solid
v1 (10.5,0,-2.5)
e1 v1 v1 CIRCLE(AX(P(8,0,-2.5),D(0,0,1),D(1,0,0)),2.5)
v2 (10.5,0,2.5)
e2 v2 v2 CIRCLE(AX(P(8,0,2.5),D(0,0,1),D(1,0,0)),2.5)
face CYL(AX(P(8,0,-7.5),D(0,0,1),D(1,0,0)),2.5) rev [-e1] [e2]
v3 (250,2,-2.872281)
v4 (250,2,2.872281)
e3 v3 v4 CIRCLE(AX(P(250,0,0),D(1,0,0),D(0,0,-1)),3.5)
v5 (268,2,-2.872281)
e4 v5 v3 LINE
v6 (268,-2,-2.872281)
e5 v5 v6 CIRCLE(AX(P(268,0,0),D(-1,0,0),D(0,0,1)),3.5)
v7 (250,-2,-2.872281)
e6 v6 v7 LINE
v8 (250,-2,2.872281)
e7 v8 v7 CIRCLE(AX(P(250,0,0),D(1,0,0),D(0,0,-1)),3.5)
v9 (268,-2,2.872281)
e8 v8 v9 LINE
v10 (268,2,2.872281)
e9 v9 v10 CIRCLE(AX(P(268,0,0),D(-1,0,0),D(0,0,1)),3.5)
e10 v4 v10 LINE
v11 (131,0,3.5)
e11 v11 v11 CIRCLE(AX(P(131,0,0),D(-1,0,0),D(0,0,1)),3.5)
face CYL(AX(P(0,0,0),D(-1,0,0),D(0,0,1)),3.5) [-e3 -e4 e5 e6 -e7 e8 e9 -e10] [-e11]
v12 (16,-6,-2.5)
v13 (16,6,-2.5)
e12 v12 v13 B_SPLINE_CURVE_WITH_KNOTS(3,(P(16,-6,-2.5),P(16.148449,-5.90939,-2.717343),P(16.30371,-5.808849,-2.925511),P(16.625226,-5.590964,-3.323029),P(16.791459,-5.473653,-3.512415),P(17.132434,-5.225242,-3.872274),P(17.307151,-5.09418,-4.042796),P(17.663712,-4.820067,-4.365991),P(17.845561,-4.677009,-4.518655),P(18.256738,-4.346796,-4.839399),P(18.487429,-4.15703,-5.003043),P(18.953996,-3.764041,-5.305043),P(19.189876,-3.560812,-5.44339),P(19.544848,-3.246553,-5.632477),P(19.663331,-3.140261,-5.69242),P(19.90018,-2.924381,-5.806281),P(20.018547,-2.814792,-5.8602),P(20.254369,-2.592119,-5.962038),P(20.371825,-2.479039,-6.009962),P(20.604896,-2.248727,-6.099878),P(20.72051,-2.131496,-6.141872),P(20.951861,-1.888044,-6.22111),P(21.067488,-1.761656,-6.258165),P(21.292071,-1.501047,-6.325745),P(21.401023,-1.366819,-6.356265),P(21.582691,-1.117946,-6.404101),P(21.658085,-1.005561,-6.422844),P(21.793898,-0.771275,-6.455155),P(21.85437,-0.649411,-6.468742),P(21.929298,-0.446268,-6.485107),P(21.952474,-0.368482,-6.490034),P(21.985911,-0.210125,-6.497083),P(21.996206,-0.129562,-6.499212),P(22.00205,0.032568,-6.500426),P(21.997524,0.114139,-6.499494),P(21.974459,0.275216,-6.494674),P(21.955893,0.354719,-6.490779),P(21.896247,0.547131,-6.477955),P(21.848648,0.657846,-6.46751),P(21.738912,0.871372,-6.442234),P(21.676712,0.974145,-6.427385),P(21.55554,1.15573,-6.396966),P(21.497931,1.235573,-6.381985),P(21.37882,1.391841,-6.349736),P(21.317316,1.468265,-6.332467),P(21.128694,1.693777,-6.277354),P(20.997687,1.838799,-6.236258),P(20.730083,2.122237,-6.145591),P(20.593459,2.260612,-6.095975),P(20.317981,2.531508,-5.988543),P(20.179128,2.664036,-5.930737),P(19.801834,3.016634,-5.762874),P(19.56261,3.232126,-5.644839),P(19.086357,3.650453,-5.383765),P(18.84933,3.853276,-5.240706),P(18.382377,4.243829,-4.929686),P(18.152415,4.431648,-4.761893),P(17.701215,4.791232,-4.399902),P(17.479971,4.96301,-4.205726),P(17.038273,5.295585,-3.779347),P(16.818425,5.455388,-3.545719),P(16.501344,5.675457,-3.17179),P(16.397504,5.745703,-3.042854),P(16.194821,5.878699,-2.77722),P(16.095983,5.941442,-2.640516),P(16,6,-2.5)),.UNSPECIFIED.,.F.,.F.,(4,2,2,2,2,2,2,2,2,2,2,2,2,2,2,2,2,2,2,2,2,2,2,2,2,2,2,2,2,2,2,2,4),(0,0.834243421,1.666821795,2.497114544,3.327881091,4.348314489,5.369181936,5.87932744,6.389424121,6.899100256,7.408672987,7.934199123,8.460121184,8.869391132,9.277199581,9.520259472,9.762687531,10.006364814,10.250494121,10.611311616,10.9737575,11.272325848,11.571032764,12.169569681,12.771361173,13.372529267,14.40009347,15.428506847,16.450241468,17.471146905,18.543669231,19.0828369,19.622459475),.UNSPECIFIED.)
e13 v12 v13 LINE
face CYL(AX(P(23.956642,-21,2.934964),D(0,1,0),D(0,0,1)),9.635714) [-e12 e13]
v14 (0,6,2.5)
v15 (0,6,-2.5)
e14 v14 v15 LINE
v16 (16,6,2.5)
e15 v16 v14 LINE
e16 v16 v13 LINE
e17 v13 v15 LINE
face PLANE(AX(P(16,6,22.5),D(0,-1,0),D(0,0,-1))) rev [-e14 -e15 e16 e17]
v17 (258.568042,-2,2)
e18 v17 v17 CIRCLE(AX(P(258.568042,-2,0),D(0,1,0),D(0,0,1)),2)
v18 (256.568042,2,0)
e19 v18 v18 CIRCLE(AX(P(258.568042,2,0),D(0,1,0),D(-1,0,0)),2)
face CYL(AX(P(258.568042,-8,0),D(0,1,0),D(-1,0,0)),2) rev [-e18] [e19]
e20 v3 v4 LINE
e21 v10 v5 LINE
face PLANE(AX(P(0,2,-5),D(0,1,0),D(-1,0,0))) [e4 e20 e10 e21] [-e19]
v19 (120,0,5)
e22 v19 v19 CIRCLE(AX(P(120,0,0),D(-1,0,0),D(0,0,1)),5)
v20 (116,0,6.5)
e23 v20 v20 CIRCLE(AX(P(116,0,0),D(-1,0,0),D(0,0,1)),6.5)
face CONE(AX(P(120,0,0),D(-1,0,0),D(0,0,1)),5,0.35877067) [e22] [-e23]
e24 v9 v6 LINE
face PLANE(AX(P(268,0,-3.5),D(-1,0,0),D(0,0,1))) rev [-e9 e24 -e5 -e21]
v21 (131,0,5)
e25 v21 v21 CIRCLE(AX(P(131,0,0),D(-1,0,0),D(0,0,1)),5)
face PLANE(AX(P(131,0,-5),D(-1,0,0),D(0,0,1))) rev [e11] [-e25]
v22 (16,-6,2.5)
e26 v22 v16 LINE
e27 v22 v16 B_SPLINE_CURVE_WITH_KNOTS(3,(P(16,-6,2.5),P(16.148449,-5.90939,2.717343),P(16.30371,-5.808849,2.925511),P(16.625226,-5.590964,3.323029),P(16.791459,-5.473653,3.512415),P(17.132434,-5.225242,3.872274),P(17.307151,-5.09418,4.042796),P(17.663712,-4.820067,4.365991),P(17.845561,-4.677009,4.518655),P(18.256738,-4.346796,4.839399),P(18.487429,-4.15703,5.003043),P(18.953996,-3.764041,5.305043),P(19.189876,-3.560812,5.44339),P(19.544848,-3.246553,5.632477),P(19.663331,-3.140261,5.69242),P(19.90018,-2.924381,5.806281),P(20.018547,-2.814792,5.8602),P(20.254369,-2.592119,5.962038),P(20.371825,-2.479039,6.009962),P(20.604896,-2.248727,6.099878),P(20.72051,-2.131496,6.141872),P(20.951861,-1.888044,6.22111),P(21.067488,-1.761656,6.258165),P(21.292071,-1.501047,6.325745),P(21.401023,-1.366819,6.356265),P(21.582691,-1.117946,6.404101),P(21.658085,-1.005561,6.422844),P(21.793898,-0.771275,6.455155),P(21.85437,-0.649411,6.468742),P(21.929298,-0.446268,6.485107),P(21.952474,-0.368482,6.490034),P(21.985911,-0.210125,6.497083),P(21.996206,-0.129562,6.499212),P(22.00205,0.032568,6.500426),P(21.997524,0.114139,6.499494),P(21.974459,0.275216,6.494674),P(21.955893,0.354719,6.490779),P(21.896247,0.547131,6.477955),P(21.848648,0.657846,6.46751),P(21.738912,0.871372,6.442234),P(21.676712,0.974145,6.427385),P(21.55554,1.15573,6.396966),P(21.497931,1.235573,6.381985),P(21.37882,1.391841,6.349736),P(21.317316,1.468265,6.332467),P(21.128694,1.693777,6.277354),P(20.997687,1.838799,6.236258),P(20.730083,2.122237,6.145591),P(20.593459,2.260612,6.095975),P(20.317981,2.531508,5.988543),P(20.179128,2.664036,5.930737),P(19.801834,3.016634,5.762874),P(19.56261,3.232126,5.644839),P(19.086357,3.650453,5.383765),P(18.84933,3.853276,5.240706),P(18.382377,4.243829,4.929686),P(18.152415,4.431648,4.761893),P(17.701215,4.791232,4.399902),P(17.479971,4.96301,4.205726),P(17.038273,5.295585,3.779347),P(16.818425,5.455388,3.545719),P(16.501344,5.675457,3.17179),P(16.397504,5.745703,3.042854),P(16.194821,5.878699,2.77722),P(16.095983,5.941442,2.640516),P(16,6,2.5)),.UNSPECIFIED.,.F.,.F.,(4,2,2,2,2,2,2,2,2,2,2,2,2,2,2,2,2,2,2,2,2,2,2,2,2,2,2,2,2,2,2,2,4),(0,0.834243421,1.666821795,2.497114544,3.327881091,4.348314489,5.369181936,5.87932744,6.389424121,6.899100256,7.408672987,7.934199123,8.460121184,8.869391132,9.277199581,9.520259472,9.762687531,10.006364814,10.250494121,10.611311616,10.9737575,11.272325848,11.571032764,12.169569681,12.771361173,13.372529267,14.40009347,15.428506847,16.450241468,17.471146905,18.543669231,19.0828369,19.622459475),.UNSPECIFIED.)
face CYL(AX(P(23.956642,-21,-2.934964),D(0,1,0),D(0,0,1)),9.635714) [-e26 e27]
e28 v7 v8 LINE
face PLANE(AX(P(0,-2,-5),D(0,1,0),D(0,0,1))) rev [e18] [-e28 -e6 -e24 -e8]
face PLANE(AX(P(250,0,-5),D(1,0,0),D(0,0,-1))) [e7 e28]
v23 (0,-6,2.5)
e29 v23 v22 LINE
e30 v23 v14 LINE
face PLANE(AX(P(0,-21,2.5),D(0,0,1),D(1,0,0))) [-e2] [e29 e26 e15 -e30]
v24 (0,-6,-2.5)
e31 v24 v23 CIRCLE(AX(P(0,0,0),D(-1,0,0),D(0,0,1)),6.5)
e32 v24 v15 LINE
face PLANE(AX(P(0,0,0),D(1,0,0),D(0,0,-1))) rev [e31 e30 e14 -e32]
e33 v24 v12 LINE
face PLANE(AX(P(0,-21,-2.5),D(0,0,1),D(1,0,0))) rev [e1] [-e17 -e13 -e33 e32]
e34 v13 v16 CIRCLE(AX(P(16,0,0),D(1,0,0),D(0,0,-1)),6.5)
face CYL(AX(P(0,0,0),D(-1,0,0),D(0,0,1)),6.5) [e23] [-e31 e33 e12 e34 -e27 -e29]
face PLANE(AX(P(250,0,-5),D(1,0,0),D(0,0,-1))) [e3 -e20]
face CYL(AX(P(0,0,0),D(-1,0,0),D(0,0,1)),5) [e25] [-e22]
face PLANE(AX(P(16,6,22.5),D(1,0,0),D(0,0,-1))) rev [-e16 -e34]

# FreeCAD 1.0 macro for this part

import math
import FreeCAD as App
import Part
import Sketcher
Q = App.Units.Quantity

doc = App.newDocument("Part")
body = doc.addObject("PartDesign::Body", "Body")

# Sketch on XZ plane
sketch1 = body.newObject("Sketcher::SketchObject", "Sketch")
sketch1.AttachmentSupport = (doc.getObject("XZ_Plane"), [""])
sketch1.MapMode = "FlatFace"
sketch1.addGeometry([
    Part.LineSegment(App.Vector(0, -6.5, 0), App.Vector(0, 0, 0)),  # 0
    Part.LineSegment(App.Vector(0, 0, 0), App.Vector(268, 0, 0)),  # 1
    Part.LineSegment(App.Vector(268, 0, 0), App.Vector(268, -3.5, 0)),  # 2
    Part.LineSegment(App.Vector(268, -3.5, 0), App.Vector(131, -3.5, 0)),  # 3
    Part.LineSegment(App.Vector(131, -3.5, 0), App.Vector(131, -5, 0)),  # 4
    Part.LineSegment(App.Vector(131, -5, 0), App.Vector(120, -5, 0)),  # 5
    Part.LineSegment(App.Vector(120, -5, 0), App.Vector(116, -6.5, 0)),  # 6
    Part.LineSegment(App.Vector(116, -6.5, 0), App.Vector(0, -6.5, 0)),  # 7
], False)
sketch1.addConstraint([
    Sketcher.Constraint("Coincident", 0, 2, 1, 1),
    Sketcher.Constraint("Coincident", 1, 2, 2, 1),
    Sketcher.Constraint("Coincident", 2, 2, 3, 1),
    Sketcher.Constraint("Coincident", 3, 2, 4, 1),
    Sketcher.Constraint("Coincident", 4, 2, 5, 1),
    Sketcher.Constraint("Coincident", 5, 2, 6, 1),
    Sketcher.Constraint("Coincident", 6, 2, 7, 1),
    Sketcher.Constraint("Coincident", 7, 2, 0, 1),
    Sketcher.Constraint("Vertical", 0),
    Sketcher.Constraint("Horizontal", 1),
    Sketcher.Constraint("Vertical", 2),
    Sketcher.Constraint("Horizontal", 3),
    Sketcher.Constraint("Vertical", 4),
    Sketcher.Constraint("Horizontal", 5),
    Sketcher.Constraint("Horizontal", 7),
    Sketcher.Constraint("Coincident", 0, 2, -1, 1),
    Sketcher.Constraint("DistanceX", 1, 1, 1, 2, Q("268 mm")),
    Sketcher.Constraint("DistanceX", 3, 2, 3, 1, Q("137 mm")),
    Sketcher.Constraint("DistanceX", 5, 2, 5, 1, Q("11 mm")),
    Sketcher.Constraint("DistanceX", 7, 2, 7, 1, Q("116 mm")),
    Sketcher.Constraint("DistanceY", 0, 1, 0, 2, Q("6.5 mm")),
    Sketcher.Constraint("DistanceY", 2, 2, 2, 1, Q("3.5 mm")),
    Sketcher.Constraint("DistanceY", 4, 2, 4, 1, Q("1.5 mm")),
])
revolution = body.newObject("PartDesign::Revolution", "Revolution")
revolution.Profile = sketch1
revolution.ReferenceAxis = (sketch1, ["H_Axis"])
revolution.Angle = 360

# Sketch on XZ plane
sketch2 = body.newObject("Sketcher::SketchObject", "Sketch001")
sketch2.AttachmentSupport = (doc.getObject("XZ_Plane"), [""])
sketch2.MapMode = "FlatFace"
sketch2.addGeometry([
    Part.LineSegment(App.Vector(0, -6.5, 0), App.Vector(0, -2.5, 0)),  # 0
    Part.LineSegment(App.Vector(0, -2.5, 0), App.Vector(16, -2.5, 0)),  # 1
    Part.ArcOfCircle(Part.Circle(App.Vector(24, 2.9, 0), App.Vector(0, 0, 1), 9.6), math.radians(-146), math.radians(-102)),  # 2
    Part.LineSegment(App.Vector(22, -6.5, 0), App.Vector(0, -6.5, 0)),  # 3
    Part.LineSegment(App.Vector(16, 2.5, 0), App.Vector(0, 2.5, 0)),  # 4
    Part.LineSegment(App.Vector(0, 2.5, 0), App.Vector(0, 6.5, 0)),  # 5
    Part.LineSegment(App.Vector(0, 6.5, 0), App.Vector(22, 6.5, 0)),  # 6
    Part.ArcOfCircle(Part.Circle(App.Vector(24, -2.9, 0), App.Vector(0, 0, 1), 9.6), math.radians(102), math.radians(146)),  # 7
], False)
sketch2.addConstraint([
    Sketcher.Constraint("Coincident", 0, 2, 1, 1),
    Sketcher.Constraint("Coincident", 1, 2, 2, 1),
    Sketcher.Constraint("Coincident", 2, 2, 3, 1),
    Sketcher.Constraint("Coincident", 3, 2, 0, 1),
    Sketcher.Constraint("Coincident", 4, 2, 5, 1),
    Sketcher.Constraint("Coincident", 5, 2, 6, 1),
    Sketcher.Constraint("Coincident", 6, 2, 7, 1),
    Sketcher.Constraint("Coincident", 7, 2, 4, 1),
    Sketcher.Constraint("Vertical", 0),
    Sketcher.Constraint("Horizontal", 1),
    Sketcher.Constraint("Horizontal", 3),
    Sketcher.Constraint("Horizontal", 4),
    Sketcher.Constraint("Vertical", 5),
    Sketcher.Constraint("Horizontal", 6),
    Sketcher.Constraint("Equal", 2, 7),
    Sketcher.Constraint("Symmetric", 0, 2, 4, 2, -1, 1),
    Sketcher.Constraint("Symmetric", 2, 3, 7, 3, -1),
    Sketcher.Constraint("Symmetric", 3, 2, 5, 2, -1),
    Sketcher.Constraint("DistanceX", 1, 1, 1, 2, Q("16 mm")),
    Sketcher.Constraint("DistanceX", 3, 2, 3, 1, Q("22 mm")),
    Sketcher.Constraint("DistanceY", 0, 1, 0, 2, Q("4 mm")),
    Sketcher.Constraint("DistanceY", 0, 2, 4, 2, Q("5 mm")),
    Sketcher.Constraint("Radius", 2, Q("9.635714 mm")),
])
pocket1 = body.newObject("PartDesign::Pocket", "Pocket")
pocket1.Profile = sketch2
pocket1.Length = 42
pocket1.Midplane = True

# Sketch on XY plane
sketch3 = body.newObject("Sketcher::SketchObject", "Sketch002")
sketch3.AttachmentSupport = (doc.getObject("XY_Plane"), [""])
sketch3.MapMode = "FlatFace"
sketch3.AttachmentOffset = App.Placement(App.Vector(0, 0, -2.5), App.Rotation())
sketch3.addGeometry([
    Part.LineSegment(App.Vector(16, 15, 0), App.Vector(16, 6, 0)),
    Part.LineSegment(App.Vector(16, 6, 0), App.Vector(-3, 6, 0)),
    Part.LineSegment(App.Vector(-3, 6, 0), App.Vector(-3, 15, 0)),
    Part.LineSegment(App.Vector(-3, 15, 0), App.Vector(16, 15, 0)),
], False)
sketch3.addConstraint([
    Sketcher.Constraint("Coincident", 0, 2, 1, 1),
    Sketcher.Constraint("Coincident", 1, 2, 2, 1),
    Sketcher.Constraint("Coincident", 2, 2, 3, 1),
    Sketcher.Constraint("Coincident", 3, 2, 0, 1),
    Sketcher.Constraint("Vertical", 0),
    Sketcher.Constraint("Horizontal", 1),
    Sketcher.Constraint("Vertical", 2),
    Sketcher.Constraint("Horizontal", 3),
    Sketcher.Constraint("DistanceX", -1, 1, 0, 2, Q("16 mm")),
    Sketcher.Constraint("DistanceY", -1, 1, 0, 2, Q("6 mm")),
    Sketcher.Constraint("DistanceX", 1, 2, 1, 1, Q("19.327906 mm")),
    Sketcher.Constraint("DistanceY", 0, 2, 0, 1, Q("9.031167 mm")),
])
pocket2 = body.newObject("PartDesign::Pocket", "Pocket001")
pocket2.Profile = sketch3
pocket2.Length = 25
pocket2.Reversed = True

# Sketch on XY plane
sketch4 = body.newObject("Sketcher::SketchObject", "Sketch003")
sketch4.AttachmentSupport = (doc.getObject("XY_Plane"), [""])
sketch4.MapMode = "FlatFace"
sketch4.addGeometry([
    Part.LineSegment(App.Vector(250, 2, 0), App.Vector(275, 2, 0)),  # 0
    Part.LineSegment(App.Vector(275, 2, 0), App.Vector(275, 6.6, 0)),  # 1
    Part.LineSegment(App.Vector(275, 6.6, 0), App.Vector(250, 7.4, 0)),  # 2
    Part.LineSegment(App.Vector(250, 7.4, 0), App.Vector(250, 2, 0)),  # 3
    Part.LineSegment(App.Vector(275, -10.2, 0), App.Vector(275, -2, 0)),  # 4
    Part.LineSegment(App.Vector(275, -2, 0), App.Vector(250, -2, 0)),  # 5
    Part.LineSegment(App.Vector(250, -2, 0), App.Vector(250, -8.8, 0)),  # 6
    Part.LineSegment(App.Vector(250, -8.8, 0), App.Vector(275, -10.2, 0)),  # 7
], False)
sketch4.addConstraint([
    Sketcher.Constraint("Coincident", 0, 2, 1, 1),
    Sketcher.Constraint("Coincident", 1, 2, 2, 1),
    Sketcher.Constraint("Coincident", 2, 2, 3, 1),
    Sketcher.Constraint("Coincident", 3, 2, 0, 1),
    Sketcher.Constraint("Coincident", 4, 2, 5, 1),
    Sketcher.Constraint("Coincident", 5, 2, 6, 1),
    Sketcher.Constraint("Coincident", 6, 2, 7, 1),
    Sketcher.Constraint("Coincident", 7, 2, 4, 1),
    Sketcher.Constraint("Horizontal", 0),
    Sketcher.Constraint("Vertical", 1),
    Sketcher.Constraint("Vertical", 3),
    Sketcher.Constraint("Vertical", 4),
    Sketcher.Constraint("Horizontal", 5),
    Sketcher.Constraint("Vertical", 6),
    Sketcher.Constraint("Symmetric", 0, 2, 4, 2, -1),
    Sketcher.Constraint("Vertical", 3, 2, 5, 2),
    Sketcher.Constraint("DistanceY", -1, 1, 0, 2, Q("2 mm")),
    Sketcher.Constraint("DistanceX", -1, 1, 2, 2, Q("250 mm")),
    Sketcher.Constraint("DistanceY", 4, 1, 4, 2, Q("8.20437 mm")),
    Sketcher.Constraint("Distance", 7, Q("25.076139 mm")),
    Sketcher.Constraint("DistanceX", 0, 1, 0, 2, Q("25.037155 mm")),
    Sketcher.Constraint("DistanceY", 1, 1, 1, 2, Q("4.622106 mm")),
    Sketcher.Constraint("DistanceY", 3, 2, 3, 1, Q("5.374728 mm")),
])
pocket3 = body.newObject("PartDesign::Pocket", "Pocket002")
pocket3.Profile = sketch4
pocket3.Length = 10
pocket3.Midplane = True

# Sketch on XZ plane
sketch5 = body.newObject("Sketcher::SketchObject", "Sketch004")
sketch5.AttachmentSupport = (doc.getObject("XZ_Plane"), [""])
sketch5.MapMode = "FlatFace"
sketch5.AttachmentOffset = App.Placement(App.Vector(0, 0, -2), App.Rotation())
sketch5.addGeometry(Part.Circle(App.Vector(258.6, 0, 0), App.Vector(0, 0, 1), 2), False)
sketch5.addConstraint([
    Sketcher.Constraint("PointOnObject", 0, 3, -1),
    Sketcher.Constraint("Diameter", 0, Q("4 mm")),
    Sketcher.Constraint("DistanceX", -1, 1, 0, 3, Q("258.568042 mm")),
])
pocket4 = body.newObject("PartDesign::Pocket", "Pocket003")
pocket4.Profile = sketch5
pocket4.Length = 10
pocket4.Reversed = True

# Sketch on XY plane
sketch6 = body.newObject("Sketcher::SketchObject", "Sketch005")
sketch6.AttachmentSupport = (doc.getObject("XY_Plane"), [""])
sketch6.MapMode = "FlatFace"
sketch6.AttachmentOffset = App.Placement(App.Vector(0, 0, 2.5), App.Rotation())
sketch6.addGeometry(Part.Circle(App.Vector(8, 0, 0), App.Vector(0, 0, 1), 2.5), False)
sketch6.addConstraint([
    Sketcher.Constraint("PointOnObject", 0, 3, -1),
    Sketcher.Constraint("Diameter", 0, Q("5 mm")),
    Sketcher.Constraint("DistanceX", -1, 1, 0, 3, Q("8 mm")),
])
pocket5 = body.newObject("PartDesign::Pocket", "Pocket004")
pocket5.Profile = sketch6
pocket5.Length = 10

doc.recompute()
